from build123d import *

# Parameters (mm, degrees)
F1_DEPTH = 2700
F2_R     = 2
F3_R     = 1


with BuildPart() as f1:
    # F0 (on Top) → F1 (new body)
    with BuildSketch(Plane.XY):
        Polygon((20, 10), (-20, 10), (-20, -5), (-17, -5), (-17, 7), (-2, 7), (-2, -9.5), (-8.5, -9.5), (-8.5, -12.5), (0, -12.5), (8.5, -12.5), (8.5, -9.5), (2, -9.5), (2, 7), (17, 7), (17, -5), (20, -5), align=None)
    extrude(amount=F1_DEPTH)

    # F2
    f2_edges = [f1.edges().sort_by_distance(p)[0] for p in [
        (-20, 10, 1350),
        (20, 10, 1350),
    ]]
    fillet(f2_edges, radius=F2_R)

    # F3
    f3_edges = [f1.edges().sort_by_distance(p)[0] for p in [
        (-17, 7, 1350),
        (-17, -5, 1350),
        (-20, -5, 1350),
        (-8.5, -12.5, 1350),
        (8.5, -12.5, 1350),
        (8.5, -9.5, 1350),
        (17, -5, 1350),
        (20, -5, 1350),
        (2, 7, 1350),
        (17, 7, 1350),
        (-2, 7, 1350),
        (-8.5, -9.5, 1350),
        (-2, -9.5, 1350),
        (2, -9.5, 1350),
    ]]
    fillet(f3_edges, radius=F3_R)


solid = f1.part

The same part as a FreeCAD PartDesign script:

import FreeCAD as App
import Part
import Sketcher

V = App.Vector
Q = App.Units.Quantity


def edges_at(feature, points):
    """Names of the edges that pass closest to the given points."""
    edges = feature.Shape.Edges
    near = lambda p: min(range(len(edges)), key=lambda i: edges[i].distToShape(Part.Vertex(*p))[0])
    return sorted({f"Edge{near(p) + 1}" for p in points})


def add_polygon(sketch, points):
    """Adds a closed chain of lines whose ends are joined by coincident constraints."""
    first, n = sketch.GeometryCount, len(points)
    for a, b in zip(points, points[1:] + points[:1]):
        sketch.addGeometry(Part.LineSegment(App.Vector(*a, 0), App.Vector(*b, 0)), False)
    for i in range(n):
        sketch.addConstraint(Sketcher.Constraint("Coincident", first + i, 2, first + (i + 1) % n, 1))

doc = App.newDocument("Part")
params = doc.addObject("Spreadsheet::Sheet", "Params")
for row, (alias, value) in enumerate([
    ("sketch1_width", "40 mm"),
    ("sketch1_width2", "3 mm"),
    ("sketch1_width3", "15 mm"),
    ("sketch1_width4", "17 mm"),
    ("sketch1_height", "12 mm"),
    ("pad1_length", "2700 mm"),
    ("fillet_radius", "2 mm"),
    ("fillet2_radius", "1 mm"),
], start=1):
    params.set(f"A{row}", alias)
    params.set(f"B{row}", "=" + value)
    params.setAlias(f"B{row}", alias)

body = doc.addObject("PartDesign::Body", "Body")

# Sketch on XY plane
sketch1 = doc.addObject("Sketcher::SketchObject", "Sketch")
body.addObject(sketch1)
sketch1.AttachmentSupport = (doc.XY_Plane, [""])
sketch1.MapMode = "FlatFace"
add_polygon(sketch1, [(20, 10), (-20, 10), (-20, -5), (-17, -5), (-17, 7), (-2, 7), (-2, -9.5), (-8.5, -9.5), (-8.5, -12.5), (8.5, -12.5), (8.5, -9.5), (2, -9.5), (2, 7), (17, 7), (17, -5), (20, -5)])  # lines 0-15
sketch1.addConstraint([
    Sketcher.Constraint("Horizontal", 0),
    Sketcher.Constraint("Vertical", 1),
    Sketcher.Constraint("Horizontal", 2),
    Sketcher.Constraint("Vertical", 3),
    Sketcher.Constraint("Horizontal", 4),
    Sketcher.Constraint("Vertical", 5),
    Sketcher.Constraint("Horizontal", 6),
    Sketcher.Constraint("Vertical", 7),
    Sketcher.Constraint("Horizontal", 8),
    Sketcher.Constraint("Vertical", 9),
    Sketcher.Constraint("Horizontal", 10),
    Sketcher.Constraint("Vertical", 11),
    Sketcher.Constraint("Horizontal", 12),
    Sketcher.Constraint("Vertical", 13),
    Sketcher.Constraint("Horizontal", 14),
    Sketcher.Constraint("Vertical", 15),
    Sketcher.Constraint("Symmetric", 6, 2, 9, 2, -2),
    Sketcher.Constraint("Symmetric", 4, 2, 11, 2, -2),
    Sketcher.Constraint("Symmetric", 2, 2, 13, 2, -2),
    Sketcher.Constraint("Equal", 2, 14),
    Sketcher.Constraint("Equal", 12, 1),
    Sketcher.Constraint("Equal", 14, 7),
    Sketcher.Constraint("DistanceX", 0, 2, 0, 1, Q("40 mm")),
    Sketcher.Constraint("DistanceX", 2, 1, 2, 2, Q("3 mm")),
    Sketcher.Constraint("DistanceX", 4, 1, 4, 2, Q("15 mm")),
    Sketcher.Constraint("DistanceX", 8, 1, 8, 2, Q("17 mm")),
    Sketcher.Constraint("DistanceY", 3, 1, 3, 2, Q("12 mm")),
    Sketcher.Constraint("DistanceY", 5, 2, 5, 1, Q("16.5 mm")),
    Sketcher.Constraint("DistanceY", -1, 1, 0, 2, Q("10 mm")),
])
sketch1.setExpression("Constraints[38]", "Params.sketch1_width")
sketch1.setExpression("Constraints[39]", "Params.sketch1_width2")
sketch1.setExpression("Constraints[40]", "Params.sketch1_width3")
sketch1.setExpression("Constraints[41]", "Params.sketch1_width4")
sketch1.setExpression("Constraints[42]", "Params.sketch1_height")
pad1 = doc.addObject("PartDesign::Pad", "Pad")
body.addObject(pad1)
pad1.Profile = sketch1
pad1.setExpression("Length", "Params.pad1_length")
doc.recompute()

fillet = doc.addObject("PartDesign::Fillet", "Fillet")
body.addObject(fillet)
fillet.Base = (pad1, edges_at(pad1, [(-20, 10, 1350), (20, 10, 1350)]))
fillet.setExpression("Radius", "Params.fillet_radius")
doc.recompute()

fillet2 = doc.addObject("PartDesign::Fillet", "Fillet001")
body.addObject(fillet2)
fillet2.Base = (fillet, edges_at(fillet, [
    (-17, 7, 1350),
    (-17, -5, 1350),
    (-20, -5, 1350),
    (-8.5, -12.5, 1350),
    (8.5, -12.5, 1350),
    (8.5, -9.5, 1350),
    (17, -5, 1350),
    (20, -5, 1350),
    (2, 7, 1350),
    (17, 7, 1350),
    (-2, 7, 1350),
    (-8.5, -9.5, 1350),
    (-2, -9.5, 1350),
    (2, -9.5, 1350),
]))
fillet2.setExpression("Radius", "Params.fillet2_radius")

doc.recompute()
